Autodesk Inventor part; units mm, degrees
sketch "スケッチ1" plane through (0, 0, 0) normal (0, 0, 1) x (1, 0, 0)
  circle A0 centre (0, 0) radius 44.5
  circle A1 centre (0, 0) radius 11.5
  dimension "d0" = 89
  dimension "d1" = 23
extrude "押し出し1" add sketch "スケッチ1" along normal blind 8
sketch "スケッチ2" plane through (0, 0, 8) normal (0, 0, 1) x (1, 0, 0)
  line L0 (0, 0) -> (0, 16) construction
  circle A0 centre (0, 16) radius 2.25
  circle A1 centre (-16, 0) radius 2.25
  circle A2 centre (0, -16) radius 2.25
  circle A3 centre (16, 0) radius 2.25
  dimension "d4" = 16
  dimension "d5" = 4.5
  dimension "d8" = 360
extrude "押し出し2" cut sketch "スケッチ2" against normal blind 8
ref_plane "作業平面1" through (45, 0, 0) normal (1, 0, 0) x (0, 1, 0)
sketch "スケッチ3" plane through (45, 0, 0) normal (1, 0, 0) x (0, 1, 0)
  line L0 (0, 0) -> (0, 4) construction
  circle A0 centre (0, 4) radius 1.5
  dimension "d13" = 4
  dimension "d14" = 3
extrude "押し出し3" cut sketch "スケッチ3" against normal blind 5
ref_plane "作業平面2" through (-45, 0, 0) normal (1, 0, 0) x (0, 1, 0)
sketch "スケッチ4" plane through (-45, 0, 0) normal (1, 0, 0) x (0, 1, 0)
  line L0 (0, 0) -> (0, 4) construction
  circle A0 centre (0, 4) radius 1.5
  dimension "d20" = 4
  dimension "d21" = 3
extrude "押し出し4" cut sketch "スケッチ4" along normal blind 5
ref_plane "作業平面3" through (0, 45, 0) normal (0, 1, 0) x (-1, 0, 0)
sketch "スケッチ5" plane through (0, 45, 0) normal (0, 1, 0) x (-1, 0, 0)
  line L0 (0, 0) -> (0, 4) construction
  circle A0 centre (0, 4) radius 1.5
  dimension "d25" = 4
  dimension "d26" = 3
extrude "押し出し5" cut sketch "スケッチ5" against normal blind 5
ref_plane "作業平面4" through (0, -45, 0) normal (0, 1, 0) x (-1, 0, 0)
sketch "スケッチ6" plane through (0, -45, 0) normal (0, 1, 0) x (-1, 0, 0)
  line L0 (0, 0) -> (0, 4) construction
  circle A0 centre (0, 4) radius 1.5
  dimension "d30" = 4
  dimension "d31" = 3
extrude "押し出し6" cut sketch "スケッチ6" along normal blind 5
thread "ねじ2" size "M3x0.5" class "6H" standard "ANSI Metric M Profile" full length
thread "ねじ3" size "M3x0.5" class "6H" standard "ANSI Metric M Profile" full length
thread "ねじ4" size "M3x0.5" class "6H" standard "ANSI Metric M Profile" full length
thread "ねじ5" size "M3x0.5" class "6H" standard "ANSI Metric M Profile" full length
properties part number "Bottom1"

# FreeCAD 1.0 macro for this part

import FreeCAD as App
import Part
import Sketcher
Q = App.Units.Quantity

doc = App.newDocument("Part")
body = doc.addObject("PartDesign::Body", "Body")

# Sketch on XY plane
sketch1 = body.newObject("Sketcher::SketchObject", "Sketch")
sketch1.AttachmentSupport = (doc.getObject("XY_Plane"), [""])
sketch1.MapMode = "FlatFace"
sketch1.addGeometry(Part.Circle(App.Vector(0, 0, 0), App.Vector(0, 0, 1), 44.5), False)
sketch1.addGeometry(Part.Circle(App.Vector(0, 0, 0), App.Vector(0, 0, 1), 11.5), False)
sketch1.addConstraint(Sketcher.Constraint("Coincident", 0, 3, -1, 1))
sketch1.addConstraint(Sketcher.Constraint("Coincident", 1, 3, -1, 1))
sketch1.addConstraint(Sketcher.Constraint("Diameter", 0, Q("89 mm")))
sketch1.addConstraint(Sketcher.Constraint("Diameter", 1, Q("23 mm")))
pad1 = body.newObject("PartDesign::Pad", "Pad")
pad1.Profile = sketch1
pad1.Length = 8

# Sketch on XY plane
sketch2 = body.newObject("Sketcher::SketchObject", "Sketch001")
sketch2.AttachmentSupport = (doc.getObject("XY_Plane"), [""])
sketch2.MapMode = "FlatFace"
sketch2.AttachmentOffset = App.Placement(App.Vector(0, 0, 8), App.Rotation())
sketch2.addGeometry(Part.Circle(App.Vector(0, 16, 0), App.Vector(0, 0, 1), 2.25), False)
sketch2.addGeometry(Part.Circle(App.Vector(-16, 0, 0), App.Vector(0, 0, 1), 2.25), False)
sketch2.addGeometry(Part.Circle(App.Vector(0, -16, 0), App.Vector(0, 0, 1), 2.25), False)
sketch2.addGeometry(Part.Circle(App.Vector(16, 0, 0), App.Vector(0, 0, 1), 2.25), False)
sketch2.addConstraint(Sketcher.Constraint("Equal", 0, 1))
sketch2.addConstraint(Sketcher.Constraint("Equal", 1, 2))
sketch2.addConstraint(Sketcher.Constraint("Equal", 2, 3))
sketch2.addConstraint(Sketcher.Constraint("Symmetric", 0, 3, 2, 3, -1, 1))
sketch2.addConstraint(Sketcher.Constraint("Symmetric", 1, 3, 3, 3, -1, 1))
sketch2.addConstraint(Sketcher.Constraint("PointOnObject", 0, 3, -2))
sketch2.addConstraint(Sketcher.Constraint("PointOnObject", 1, 3, -1))
sketch2.addConstraint(Sketcher.Constraint("Diameter", 0, Q("4.5 mm")))
sketch2.addConstraint(Sketcher.Constraint("DistanceY", -1, 1, 0, 3, Q("16 mm")))
sketch2.addConstraint(Sketcher.Constraint("DistanceX", 1, 3, -1, 1, Q("16 mm")))
pocket1 = body.newObject("PartDesign::Pocket", "Pocket")
pocket1.Profile = sketch2
pocket1.Length = 8

# Sketch on YZ plane
sketch3 = body.newObject("Sketcher::SketchObject", "Sketch002")
sketch3.AttachmentSupport = (doc.getObject("YZ_Plane"), [""])
sketch3.MapMode = "FlatFace"
sketch3.AttachmentOffset = App.Placement(App.Vector(0, 0, 45), App.Rotation())
sketch3.addGeometry(Part.Circle(App.Vector(0, 4, 0), App.Vector(0, 0, 1), 1.5), False)
sketch3.addConstraint(Sketcher.Constraint("PointOnObject", 0, 3, -2))
sketch3.addConstraint(Sketcher.Constraint("Diameter", 0, Q("3 mm")))
sketch3.addConstraint(Sketcher.Constraint("DistanceY", -1, 1, 0, 3, Q("4 mm")))
pocket2 = body.newObject("PartDesign::Pocket", "Pocket001")
pocket2.Profile = sketch3
pocket2.Length = 5

# Sketch on YZ plane
sketch4 = body.newObject("Sketcher::SketchObject", "Sketch003")
sketch4.AttachmentSupport = (doc.getObject("YZ_Plane"), [""])
sketch4.MapMode = "FlatFace"
sketch4.AttachmentOffset = App.Placement(App.Vector(0, 0, -45), App.Rotation())
sketch4.addGeometry(Part.Circle(App.Vector(0, 4, 0), App.Vector(0, 0, 1), 1.5), False)
sketch4.addConstraint(Sketcher.Constraint("PointOnObject", 0, 3, -2))
sketch4.addConstraint(Sketcher.Constraint("Diameter", 0, Q("3 mm")))
sketch4.addConstraint(Sketcher.Constraint("DistanceY", -1, 1, 0, 3, Q("4 mm")))
pocket3 = body.newObject("PartDesign::Pocket", "Pocket002")
pocket3.Profile = sketch4
pocket3.Length = 5
pocket3.Reversed = True

# Sketch on XZ plane
sketch5 = body.newObject("Sketcher::SketchObject", "Sketch004")
sketch5.AttachmentSupport = (doc.getObject("XZ_Plane"), [""])
sketch5.MapMode = "FlatFace"
sketch5.AttachmentOffset = App.Placement(App.Vector(0, 0, -45), App.Rotation())
sketch5.addGeometry(Part.Circle(App.Vector(0, 4, 0), App.Vector(0, 0, 1), 1.5), False)
sketch5.addConstraint(Sketcher.Constraint("PointOnObject", 0, 3, -2))
sketch5.addConstraint(Sketcher.Constraint("Diameter", 0, Q("3 mm")))
sketch5.addConstraint(Sketcher.Constraint("DistanceY", -1, 1, 0, 3, Q("4 mm")))
pocket4 = body.newObject("PartDesign::Pocket", "Pocket003")
pocket4.Profile = sketch5
pocket4.Length = 5
pocket4.Reversed = True

# Sketch on XZ plane
sketch6 = body.newObject("Sketcher::SketchObject", "Sketch005")
sketch6.AttachmentSupport = (doc.getObject("XZ_Plane"), [""])
sketch6.MapMode = "FlatFace"
sketch6.AttachmentOffset = App.Placement(App.Vector(0, 0, 45), App.Rotation())
sketch6.addGeometry(Part.Circle(App.Vector(0, 4, 0), App.Vector(0, 0, 1), 1.5), False)
sketch6.addConstraint(Sketcher.Constraint("PointOnObject", 0, 3, -2))
sketch6.addConstraint(Sketcher.Constraint("Diameter", 0, Q("3 mm")))
sketch6.addConstraint(Sketcher.Constraint("DistanceY", -1, 1, 0, 3, Q("4 mm")))
pocket5 = body.newObject("PartDesign::Pocket", "Pocket004")
pocket5.Profile = sketch6
pocket5.Length = 5

doc.recompute()
